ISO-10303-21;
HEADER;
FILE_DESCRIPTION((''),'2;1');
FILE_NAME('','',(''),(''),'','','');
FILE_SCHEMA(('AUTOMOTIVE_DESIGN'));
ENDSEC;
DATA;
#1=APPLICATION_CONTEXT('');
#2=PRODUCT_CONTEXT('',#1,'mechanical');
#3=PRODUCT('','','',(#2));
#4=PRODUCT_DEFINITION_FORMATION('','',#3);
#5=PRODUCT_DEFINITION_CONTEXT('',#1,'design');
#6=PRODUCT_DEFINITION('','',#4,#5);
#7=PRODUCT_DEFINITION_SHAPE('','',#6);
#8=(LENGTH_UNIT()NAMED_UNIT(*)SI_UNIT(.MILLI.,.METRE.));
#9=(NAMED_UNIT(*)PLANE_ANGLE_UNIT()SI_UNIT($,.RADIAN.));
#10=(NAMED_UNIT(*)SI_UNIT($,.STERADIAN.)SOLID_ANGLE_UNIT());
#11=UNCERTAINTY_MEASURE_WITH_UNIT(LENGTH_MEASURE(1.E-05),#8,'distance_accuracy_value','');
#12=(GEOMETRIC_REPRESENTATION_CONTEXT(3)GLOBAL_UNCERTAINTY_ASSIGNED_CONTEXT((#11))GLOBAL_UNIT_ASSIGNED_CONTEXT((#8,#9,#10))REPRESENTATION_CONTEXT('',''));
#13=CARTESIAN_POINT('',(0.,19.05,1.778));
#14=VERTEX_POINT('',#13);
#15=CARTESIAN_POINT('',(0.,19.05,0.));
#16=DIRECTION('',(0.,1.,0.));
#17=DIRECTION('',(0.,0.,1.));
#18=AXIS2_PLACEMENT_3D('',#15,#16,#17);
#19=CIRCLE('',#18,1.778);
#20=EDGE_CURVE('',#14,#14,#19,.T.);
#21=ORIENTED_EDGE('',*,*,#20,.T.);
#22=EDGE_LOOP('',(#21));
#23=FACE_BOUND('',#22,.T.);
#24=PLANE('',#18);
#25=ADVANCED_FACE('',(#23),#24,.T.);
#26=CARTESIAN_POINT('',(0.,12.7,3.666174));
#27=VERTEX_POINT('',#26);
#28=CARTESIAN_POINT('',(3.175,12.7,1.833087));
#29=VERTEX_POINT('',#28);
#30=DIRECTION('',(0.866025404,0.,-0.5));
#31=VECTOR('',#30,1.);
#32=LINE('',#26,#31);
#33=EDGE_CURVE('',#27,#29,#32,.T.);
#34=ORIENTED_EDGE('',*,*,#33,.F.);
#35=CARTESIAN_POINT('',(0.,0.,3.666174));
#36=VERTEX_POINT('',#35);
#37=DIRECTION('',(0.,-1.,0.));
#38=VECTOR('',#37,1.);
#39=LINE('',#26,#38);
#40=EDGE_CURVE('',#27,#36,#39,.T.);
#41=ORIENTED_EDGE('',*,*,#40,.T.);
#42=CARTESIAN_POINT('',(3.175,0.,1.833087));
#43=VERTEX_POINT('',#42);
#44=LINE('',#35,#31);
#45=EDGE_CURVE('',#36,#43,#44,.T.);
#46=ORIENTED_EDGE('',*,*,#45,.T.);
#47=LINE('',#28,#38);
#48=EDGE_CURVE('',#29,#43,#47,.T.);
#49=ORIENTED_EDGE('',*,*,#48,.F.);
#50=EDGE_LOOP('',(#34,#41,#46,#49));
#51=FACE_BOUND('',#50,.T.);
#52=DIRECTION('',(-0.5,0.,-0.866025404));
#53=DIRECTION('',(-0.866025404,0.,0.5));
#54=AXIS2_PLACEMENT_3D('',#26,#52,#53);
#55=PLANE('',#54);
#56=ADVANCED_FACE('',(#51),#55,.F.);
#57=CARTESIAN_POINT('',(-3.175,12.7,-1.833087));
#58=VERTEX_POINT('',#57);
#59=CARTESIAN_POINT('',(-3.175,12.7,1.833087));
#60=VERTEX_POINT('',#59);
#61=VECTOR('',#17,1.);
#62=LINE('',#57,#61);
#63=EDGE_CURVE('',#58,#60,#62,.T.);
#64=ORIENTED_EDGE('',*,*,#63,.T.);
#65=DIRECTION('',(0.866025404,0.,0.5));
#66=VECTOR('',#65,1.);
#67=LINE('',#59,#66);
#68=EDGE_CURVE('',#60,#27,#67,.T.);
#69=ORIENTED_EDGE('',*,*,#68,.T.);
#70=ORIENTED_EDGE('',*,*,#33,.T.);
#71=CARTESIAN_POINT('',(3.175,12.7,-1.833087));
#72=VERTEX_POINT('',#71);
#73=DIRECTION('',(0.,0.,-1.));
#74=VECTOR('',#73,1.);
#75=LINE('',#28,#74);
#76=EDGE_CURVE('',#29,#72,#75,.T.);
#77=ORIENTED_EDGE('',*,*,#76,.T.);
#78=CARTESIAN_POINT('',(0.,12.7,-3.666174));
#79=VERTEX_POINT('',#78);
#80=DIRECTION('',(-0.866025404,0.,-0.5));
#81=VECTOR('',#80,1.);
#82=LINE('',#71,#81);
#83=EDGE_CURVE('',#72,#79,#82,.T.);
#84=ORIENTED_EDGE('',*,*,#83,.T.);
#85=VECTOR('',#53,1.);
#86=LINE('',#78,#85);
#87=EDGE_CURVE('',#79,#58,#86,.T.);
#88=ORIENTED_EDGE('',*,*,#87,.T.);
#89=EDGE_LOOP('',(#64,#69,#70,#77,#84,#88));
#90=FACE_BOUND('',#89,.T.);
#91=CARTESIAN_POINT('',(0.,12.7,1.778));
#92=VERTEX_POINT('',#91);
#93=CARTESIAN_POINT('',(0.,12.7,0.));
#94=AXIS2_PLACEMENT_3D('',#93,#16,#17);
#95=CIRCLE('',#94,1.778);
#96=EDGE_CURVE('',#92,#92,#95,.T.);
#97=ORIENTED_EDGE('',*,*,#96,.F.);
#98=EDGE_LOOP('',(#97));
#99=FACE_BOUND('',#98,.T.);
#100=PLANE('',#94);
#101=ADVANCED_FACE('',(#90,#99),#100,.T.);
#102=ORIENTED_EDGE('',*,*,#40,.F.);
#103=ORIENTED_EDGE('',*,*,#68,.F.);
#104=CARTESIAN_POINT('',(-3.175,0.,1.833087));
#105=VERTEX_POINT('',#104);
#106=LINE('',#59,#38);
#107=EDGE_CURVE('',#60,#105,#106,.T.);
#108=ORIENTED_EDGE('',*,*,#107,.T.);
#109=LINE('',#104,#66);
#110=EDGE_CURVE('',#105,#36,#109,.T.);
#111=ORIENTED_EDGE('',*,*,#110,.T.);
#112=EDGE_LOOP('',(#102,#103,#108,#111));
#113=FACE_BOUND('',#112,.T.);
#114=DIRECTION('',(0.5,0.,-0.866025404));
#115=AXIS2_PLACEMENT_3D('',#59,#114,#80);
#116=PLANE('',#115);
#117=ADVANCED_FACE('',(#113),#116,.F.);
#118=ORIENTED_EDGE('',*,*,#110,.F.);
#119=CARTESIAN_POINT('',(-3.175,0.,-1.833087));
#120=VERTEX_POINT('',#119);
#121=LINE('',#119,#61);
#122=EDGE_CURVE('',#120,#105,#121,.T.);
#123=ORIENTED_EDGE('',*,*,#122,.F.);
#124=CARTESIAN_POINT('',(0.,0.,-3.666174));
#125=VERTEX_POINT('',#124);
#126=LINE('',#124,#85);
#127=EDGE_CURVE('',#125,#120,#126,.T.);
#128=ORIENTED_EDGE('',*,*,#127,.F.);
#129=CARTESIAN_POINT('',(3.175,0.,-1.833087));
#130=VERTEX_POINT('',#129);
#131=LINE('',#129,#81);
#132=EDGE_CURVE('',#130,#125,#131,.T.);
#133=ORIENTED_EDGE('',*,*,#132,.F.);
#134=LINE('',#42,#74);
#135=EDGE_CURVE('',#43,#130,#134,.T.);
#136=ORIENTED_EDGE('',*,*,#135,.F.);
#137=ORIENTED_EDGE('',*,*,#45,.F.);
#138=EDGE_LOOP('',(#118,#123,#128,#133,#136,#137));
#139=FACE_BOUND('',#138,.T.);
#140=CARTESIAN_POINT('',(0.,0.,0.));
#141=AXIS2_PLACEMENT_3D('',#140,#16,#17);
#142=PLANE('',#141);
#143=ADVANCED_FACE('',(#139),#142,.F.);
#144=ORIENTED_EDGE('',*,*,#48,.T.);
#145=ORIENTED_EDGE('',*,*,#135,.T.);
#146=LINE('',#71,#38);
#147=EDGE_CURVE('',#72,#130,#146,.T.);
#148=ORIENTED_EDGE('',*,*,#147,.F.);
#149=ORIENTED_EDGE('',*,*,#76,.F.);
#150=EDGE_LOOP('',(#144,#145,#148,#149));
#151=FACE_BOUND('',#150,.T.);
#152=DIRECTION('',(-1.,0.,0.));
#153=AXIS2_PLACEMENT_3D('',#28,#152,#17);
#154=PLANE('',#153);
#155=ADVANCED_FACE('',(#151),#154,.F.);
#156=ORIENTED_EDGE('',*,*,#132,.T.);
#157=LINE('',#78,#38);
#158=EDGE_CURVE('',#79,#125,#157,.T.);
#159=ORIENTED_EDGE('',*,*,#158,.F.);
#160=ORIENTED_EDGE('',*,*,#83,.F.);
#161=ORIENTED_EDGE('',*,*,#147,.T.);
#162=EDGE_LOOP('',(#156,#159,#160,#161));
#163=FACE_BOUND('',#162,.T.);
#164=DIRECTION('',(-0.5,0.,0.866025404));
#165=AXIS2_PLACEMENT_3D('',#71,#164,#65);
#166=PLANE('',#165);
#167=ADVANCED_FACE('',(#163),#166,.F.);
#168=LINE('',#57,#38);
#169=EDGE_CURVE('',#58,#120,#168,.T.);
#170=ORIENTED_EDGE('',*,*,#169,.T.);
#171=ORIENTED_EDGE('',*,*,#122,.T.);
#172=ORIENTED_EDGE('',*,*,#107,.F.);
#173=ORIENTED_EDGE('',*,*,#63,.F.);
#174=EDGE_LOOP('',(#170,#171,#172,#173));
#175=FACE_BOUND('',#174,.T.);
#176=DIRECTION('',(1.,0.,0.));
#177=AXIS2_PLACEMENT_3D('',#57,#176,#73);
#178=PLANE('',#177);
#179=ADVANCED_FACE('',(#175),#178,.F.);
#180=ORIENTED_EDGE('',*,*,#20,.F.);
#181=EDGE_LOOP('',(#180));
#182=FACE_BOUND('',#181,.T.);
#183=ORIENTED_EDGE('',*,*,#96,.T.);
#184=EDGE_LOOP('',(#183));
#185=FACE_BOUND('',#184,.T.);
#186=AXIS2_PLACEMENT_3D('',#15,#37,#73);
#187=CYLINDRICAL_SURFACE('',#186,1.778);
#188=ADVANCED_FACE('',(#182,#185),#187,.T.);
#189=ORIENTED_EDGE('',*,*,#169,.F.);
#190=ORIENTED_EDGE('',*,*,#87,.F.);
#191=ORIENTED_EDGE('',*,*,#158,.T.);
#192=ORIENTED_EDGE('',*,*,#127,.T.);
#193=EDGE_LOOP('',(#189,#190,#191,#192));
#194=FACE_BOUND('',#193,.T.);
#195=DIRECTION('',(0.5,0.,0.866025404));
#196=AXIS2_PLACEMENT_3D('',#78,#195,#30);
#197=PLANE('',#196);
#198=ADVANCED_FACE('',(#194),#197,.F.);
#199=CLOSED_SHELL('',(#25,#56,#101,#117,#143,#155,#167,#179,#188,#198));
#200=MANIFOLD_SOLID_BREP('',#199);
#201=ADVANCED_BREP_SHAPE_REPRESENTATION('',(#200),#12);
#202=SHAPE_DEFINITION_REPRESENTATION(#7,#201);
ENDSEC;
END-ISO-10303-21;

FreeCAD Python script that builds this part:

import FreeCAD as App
import Part
import Sketcher
from FreeCAD import Vector
Q = App.Units.Quantity


def add_polygon(sketch, points):
    """Adds a closed chain of lines whose ends are joined by coincident constraints."""
    first, n = sketch.GeometryCount, len(points)
    for a, b in zip(points, points[1:] + points[:1]):
        sketch.addGeometry(Part.LineSegment(App.Vector(*a, 0), App.Vector(*b, 0)), False)
    for i in range(n):
        sketch.addConstraint(Sketcher.Constraint("Coincident", first + i, 2, first + (i + 1) % n, 1))

doc = App.newDocument("Part")
params = doc.addObject("Spreadsheet::Sheet", "Params")
for row, (alias, value) in enumerate([
    ("pad1_length", "0.5 in"),
    ("sketch2_diameter", "0.14 in"),
    ("pad2_length", "0.25 in"),
], start=1):
    params.set(f"A{row}", alias)
    params.set(f"B{row}", "=" + value)
    params.setAlias(f"B{row}", alias)

body = doc.addObject("PartDesign::Body", "Body")

# Sketch on XZ plane
sketch1 = body.newObject("Sketcher::SketchObject", "Sketch")
sketch1.AttachmentSupport = (doc.getObject("XZ_Plane"), [""])
sketch1.MapMode = "FlatFace"
add_polygon(sketch1, [(0, -3.7), (-3.2, -1.8), (-3.2, 1.8), (0, 3.7), (3.2, 1.8), (3.2, -1.8)])  # lines 0-5
sketch1.addConstraint(Sketcher.Constraint("Vertical", 1))
sketch1.addConstraint(Sketcher.Constraint("Vertical", 4))
sketch1.addConstraint(Sketcher.Constraint("Symmetric", 0, 2, 3, 2, -1, 1))
sketch1.addConstraint(Sketcher.Constraint("Symmetric", 2, 2, 5, 2, -1, 1))
sketch1.addConstraint(Sketcher.Constraint("PointOnObject", 2, 2, -2))
sketch1.addConstraint(Sketcher.Constraint("Parallel", 2, 5))
sketch1.addConstraint(Sketcher.Constraint("Horizontal", 1, 2, 3, 2))
sketch1.addConstraint(Sketcher.Constraint("Angle", 0, Q("150 deg")))
sketch1.addConstraint(Sketcher.Constraint("DistanceX", 1, 2, 3, 2, Q("0.25 in")))
sketch1.addConstraint(Sketcher.Constraint("DistanceY", 1, 1, 1, 2, Q("3.666174 mm")))
pad1 = body.newObject("PartDesign::Pad", "Pad")
pad1.Profile = sketch1
pad1.setExpression("Length", "Params.pad1_length")
pad1.Reversed = True

# Sketch on XZ plane
sketch2 = body.newObject("Sketcher::SketchObject", "Sketch001")
sketch2.AttachmentSupport = (doc.getObject("XZ_Plane"), [""])
sketch2.MapMode = "FlatFace"
sketch2.AttachmentOffset = App.Placement(Vector(0, 0, -0.5 * 25.4), App.Rotation())
sketch2.addGeometry(Part.Circle(Vector(0, 0, 0), Vector(0, 0, 1), 1.8), False)
sketch2.addConstraint(Sketcher.Constraint("Coincident", 0, 3, -1, 1))
sketch2.addConstraint(Sketcher.Constraint("Diameter", 0, Q("0.14 in")))
sketch2.setExpression("Constraints[1]", "Params.sketch2_diameter")
pad2 = body.newObject("PartDesign::Pad", "Pad001")
pad2.Profile = sketch2
pad2.setExpression("Length", "Params.pad2_length")
pad2.Reversed = True

doc.recompute()
